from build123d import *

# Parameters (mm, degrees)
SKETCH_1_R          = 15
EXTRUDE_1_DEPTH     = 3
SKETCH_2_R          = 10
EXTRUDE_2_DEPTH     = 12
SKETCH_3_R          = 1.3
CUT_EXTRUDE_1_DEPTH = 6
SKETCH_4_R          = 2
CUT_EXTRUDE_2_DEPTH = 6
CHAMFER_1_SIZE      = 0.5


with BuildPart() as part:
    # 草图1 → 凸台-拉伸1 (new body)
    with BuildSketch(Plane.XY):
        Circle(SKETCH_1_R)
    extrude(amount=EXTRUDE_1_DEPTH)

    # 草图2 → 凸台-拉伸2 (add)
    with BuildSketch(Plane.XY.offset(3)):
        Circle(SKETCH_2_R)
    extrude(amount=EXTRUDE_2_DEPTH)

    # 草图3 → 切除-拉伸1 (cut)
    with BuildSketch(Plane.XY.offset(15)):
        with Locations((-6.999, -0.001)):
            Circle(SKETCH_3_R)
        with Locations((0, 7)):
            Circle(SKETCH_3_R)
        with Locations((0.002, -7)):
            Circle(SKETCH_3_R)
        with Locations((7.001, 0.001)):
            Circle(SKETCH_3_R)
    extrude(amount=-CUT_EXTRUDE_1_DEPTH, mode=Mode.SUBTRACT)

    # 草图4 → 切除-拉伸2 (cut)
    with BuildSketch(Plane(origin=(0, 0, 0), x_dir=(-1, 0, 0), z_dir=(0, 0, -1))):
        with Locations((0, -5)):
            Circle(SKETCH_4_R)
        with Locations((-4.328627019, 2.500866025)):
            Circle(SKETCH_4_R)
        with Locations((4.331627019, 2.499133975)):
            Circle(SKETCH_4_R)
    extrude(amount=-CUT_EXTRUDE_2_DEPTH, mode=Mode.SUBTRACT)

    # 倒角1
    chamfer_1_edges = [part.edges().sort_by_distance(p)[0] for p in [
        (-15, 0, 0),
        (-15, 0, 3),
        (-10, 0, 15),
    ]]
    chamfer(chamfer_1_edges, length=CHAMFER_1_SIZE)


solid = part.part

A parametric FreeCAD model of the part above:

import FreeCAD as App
import Part
import Sketcher
from FreeCAD import Vector


def edges_at(feature, points):
    """Names of the edges that pass closest to the given points."""
    edges = feature.Shape.Edges
    near = lambda p: min(range(len(edges)), key=lambda i: edges[i].distToShape(Part.Vertex(*p))[0])
    return sorted({f"Edge{near(p) + 1}" for p in points})

doc = App.newDocument("Part")
body = doc.addObject("PartDesign::Body", "Body")

sketch1 = body.newObject("Sketcher::SketchObject", "Sketch")
sketch1.AttachmentSupport = (doc.getObject("XY_Plane"), [""])
sketch1.MapMode = "FlatFace"
sketch1.addGeometry(Part.Circle(Vector(0, 0, 0), Vector(0, 0, 1), 15), False)
sketch1.addConstraint([
    Sketcher.Constraint("Coincident", 0, 3, -1, 1),
    Sketcher.Constraint("Diameter", 0, 30.0),
])
pad1 = body.newObject("PartDesign::Pad", "Pad")
pad1.Profile = sketch1
pad1.Length = 3

sketch2 = body.newObject("Sketcher::SketchObject", "Sketch001")
sketch2.AttachmentSupport = (doc.getObject("XY_Plane"), [""])
sketch2.MapMode = "FlatFace"
sketch2.AttachmentOffset = App.Placement(Vector(0, 0, 3), App.Rotation())
sketch2.addGeometry(Part.Circle(Vector(0, 0, 0), Vector(0, 0, 1), 10), False)
sketch2.addConstraint([
    Sketcher.Constraint("Coincident", 0, 3, -1, 1),
    Sketcher.Constraint("Diameter", 0, 20.0),
])
pad2 = body.newObject("PartDesign::Pad", "Pad001")
pad2.Profile = sketch2
pad2.Length = 12

sketch3 = body.newObject("Sketcher::SketchObject", "Sketch002")
sketch3.AttachmentSupport = (doc.getObject("XY_Plane"), [""])
sketch3.MapMode = "FlatFace"
sketch3.AttachmentOffset = App.Placement(Vector(0, 0, 15), App.Rotation())
sketch3.addGeometry([
    Part.Circle(Vector(-7, 0, 0), Vector(0, 0, 1), 1.3),
    Part.Circle(Vector(0, 7, 0), Vector(0, 0, 1), 1.3),
    Part.Circle(Vector(0, -7, 0), Vector(0, 0, 1), 1.3),
    Part.Circle(Vector(7, 0, 0), Vector(0, 0, 1), 1.3),
], False)
sketch3.addConstraint([
    Sketcher.Constraint("Equal", 0, 1),
    Sketcher.Constraint("Equal", 1, 2),
    Sketcher.Constraint("Equal", 2, 3),
    Sketcher.Constraint("PointOnObject", 1, 3, -2),
    Sketcher.Constraint("Diameter", 0, 2.6),
    Sketcher.Constraint("DistanceY", -1, 1, 1, 3, 7.0),
    Sketcher.Constraint("DistanceY", 2, 3, -1, 1, 7.0),
    Sketcher.Constraint("DistanceX", 0, 3, 3, 3, 14.0),
    Sketcher.Constraint("DistanceX", 0, 3, -1, 1, 6.999),
    Sketcher.Constraint("DistanceY", 0, 3, -1, 1, 0.001),
    Sketcher.Constraint("DistanceX", -1, 1, 2, 3, 0.002),
    Sketcher.Constraint("DistanceY", -1, 1, 3, 3, 0.001),
])
pocket1 = body.newObject("PartDesign::Pocket", "Pocket")
pocket1.Profile = sketch3
pocket1.Length = 6

sketch4 = body.newObject("Sketcher::SketchObject", "Sketch003")
sketch4.AttachmentSupport = (doc.getObject("XY_Plane"), [""])
sketch4.MapMode = "FlatFace"
sketch4.addGeometry([
    Part.Circle(Vector(0, -5, 0), Vector(0, 0, 1), 2),
    Part.Circle(Vector(4.3, 2.5, 0), Vector(0, 0, 1), 2),
    Part.Circle(Vector(-4.3, 2.5, 0), Vector(0, 0, 1), 2),
], False)
sketch4.addConstraint([
    Sketcher.Constraint("Equal", 0, 1),
    Sketcher.Constraint("Equal", 1, 2),
    Sketcher.Constraint("PointOnObject", 0, 3, -2),
    Sketcher.Constraint("Diameter", 0, 4.0),
    Sketcher.Constraint("DistanceY", 0, 3, -1, 1, 5.0),
    Sketcher.Constraint("DistanceX", -1, 1, 1, 3, 4.328627),
    Sketcher.Constraint("DistanceY", -1, 1, 1, 3, 2.500866),
    Sketcher.Constraint("DistanceX", 2, 3, -1, 1, 4.331627),
    Sketcher.Constraint("DistanceY", -1, 1, 2, 3, 2.499134),
])
pocket2 = body.newObject("PartDesign::Pocket", "Pocket001")
pocket2.Profile = sketch4
pocket2.Length = 6
pocket2.Reversed = True
doc.recompute()

chamfer = body.newObject("PartDesign::Chamfer", "Chamfer")
chamfer.Base = (pocket2, edges_at(pocket2, [(-15, 0, 0), (-15, 0, 3), (-10, 0, 15)]))
chamfer.Size = 0.5

doc.recompute()
